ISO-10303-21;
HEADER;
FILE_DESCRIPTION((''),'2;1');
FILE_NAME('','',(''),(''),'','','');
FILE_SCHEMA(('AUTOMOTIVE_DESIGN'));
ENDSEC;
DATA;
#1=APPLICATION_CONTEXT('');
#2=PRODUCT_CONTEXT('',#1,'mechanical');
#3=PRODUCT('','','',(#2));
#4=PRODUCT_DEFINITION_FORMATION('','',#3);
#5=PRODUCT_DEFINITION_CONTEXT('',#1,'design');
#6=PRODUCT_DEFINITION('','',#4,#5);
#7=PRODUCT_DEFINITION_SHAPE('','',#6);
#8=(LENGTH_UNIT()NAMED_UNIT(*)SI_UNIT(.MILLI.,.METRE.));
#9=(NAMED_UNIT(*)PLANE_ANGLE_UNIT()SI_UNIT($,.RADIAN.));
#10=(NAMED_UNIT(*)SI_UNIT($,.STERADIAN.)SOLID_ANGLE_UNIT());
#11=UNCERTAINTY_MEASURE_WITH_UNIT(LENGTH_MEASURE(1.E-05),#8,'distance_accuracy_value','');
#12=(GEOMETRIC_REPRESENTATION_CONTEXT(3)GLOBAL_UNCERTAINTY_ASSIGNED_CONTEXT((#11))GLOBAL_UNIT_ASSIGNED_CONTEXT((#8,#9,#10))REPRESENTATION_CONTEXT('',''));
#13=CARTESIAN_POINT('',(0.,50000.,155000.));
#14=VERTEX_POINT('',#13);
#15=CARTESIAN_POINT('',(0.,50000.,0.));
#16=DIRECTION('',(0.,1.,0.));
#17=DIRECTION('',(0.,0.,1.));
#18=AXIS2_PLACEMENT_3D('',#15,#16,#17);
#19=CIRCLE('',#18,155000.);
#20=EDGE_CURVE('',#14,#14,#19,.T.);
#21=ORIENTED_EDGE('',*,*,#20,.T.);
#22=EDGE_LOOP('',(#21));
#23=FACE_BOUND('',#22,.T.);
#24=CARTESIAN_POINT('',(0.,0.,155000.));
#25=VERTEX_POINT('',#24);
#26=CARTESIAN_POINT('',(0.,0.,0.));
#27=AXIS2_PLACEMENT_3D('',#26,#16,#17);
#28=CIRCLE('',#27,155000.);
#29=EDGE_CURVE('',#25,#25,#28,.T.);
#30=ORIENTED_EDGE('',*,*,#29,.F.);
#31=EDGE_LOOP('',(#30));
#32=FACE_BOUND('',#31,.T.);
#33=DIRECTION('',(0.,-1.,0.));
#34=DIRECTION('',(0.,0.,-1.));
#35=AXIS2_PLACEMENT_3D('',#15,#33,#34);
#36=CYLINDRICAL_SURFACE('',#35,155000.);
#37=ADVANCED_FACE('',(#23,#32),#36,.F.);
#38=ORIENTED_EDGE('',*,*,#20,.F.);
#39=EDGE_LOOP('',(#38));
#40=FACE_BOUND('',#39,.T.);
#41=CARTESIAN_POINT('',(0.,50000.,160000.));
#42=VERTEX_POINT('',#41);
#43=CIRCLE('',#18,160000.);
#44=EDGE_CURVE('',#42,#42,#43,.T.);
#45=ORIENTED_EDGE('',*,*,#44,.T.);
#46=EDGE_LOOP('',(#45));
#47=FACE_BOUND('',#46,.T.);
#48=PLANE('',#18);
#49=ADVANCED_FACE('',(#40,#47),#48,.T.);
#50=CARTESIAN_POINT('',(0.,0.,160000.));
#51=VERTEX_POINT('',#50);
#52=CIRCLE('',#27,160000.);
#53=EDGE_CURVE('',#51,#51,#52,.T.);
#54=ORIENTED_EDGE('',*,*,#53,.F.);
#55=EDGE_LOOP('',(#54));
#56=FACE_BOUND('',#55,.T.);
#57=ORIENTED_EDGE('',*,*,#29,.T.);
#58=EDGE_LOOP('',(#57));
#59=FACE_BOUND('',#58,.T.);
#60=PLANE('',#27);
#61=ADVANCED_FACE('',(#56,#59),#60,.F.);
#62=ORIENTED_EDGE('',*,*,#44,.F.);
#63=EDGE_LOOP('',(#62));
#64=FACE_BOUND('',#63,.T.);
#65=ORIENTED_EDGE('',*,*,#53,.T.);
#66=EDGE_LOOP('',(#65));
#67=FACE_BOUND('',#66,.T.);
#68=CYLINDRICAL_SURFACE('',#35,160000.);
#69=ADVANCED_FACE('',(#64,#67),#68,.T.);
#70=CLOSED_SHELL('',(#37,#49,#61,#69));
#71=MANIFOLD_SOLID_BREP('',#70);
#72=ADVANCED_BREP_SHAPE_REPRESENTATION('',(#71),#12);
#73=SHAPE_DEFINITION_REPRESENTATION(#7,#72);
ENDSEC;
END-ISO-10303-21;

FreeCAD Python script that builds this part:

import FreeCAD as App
import Part
import Sketcher

V = App.Vector
Q = App.Units.Quantity

doc = App.newDocument("Part")
body = doc.addObject("PartDesign::Body", "Body")

sketch1 = body.newObject("Sketcher::SketchObject", "Sketch")
sketch1.AttachmentSupport = (doc.getObject("XZ_Plane"), [""])
sketch1.MapMode = "FlatFace"
sketch1.addGeometry([
    Part.Circle(V(0, 0, 0), V(0, 0, 1), 160000),
    Part.Circle(V(0, 0, 0), V(0, 0, 1), 155000),
], False)
sketch1.addConstraint([
    Sketcher.Constraint("Coincident", 0, 3, -1, 1),
    Sketcher.Constraint("Coincident", 1, 3, -1, 1),
    Sketcher.Constraint("Diameter", 0, Q("320000 mm")),
    Sketcher.Constraint("Diameter", 1, Q("310000 mm")),
])
pad1 = body.newObject("PartDesign::Pad", "Pad")
pad1.Profile = sketch1
pad1.Length = 50000
pad1.Reversed = True

doc.recompute()
